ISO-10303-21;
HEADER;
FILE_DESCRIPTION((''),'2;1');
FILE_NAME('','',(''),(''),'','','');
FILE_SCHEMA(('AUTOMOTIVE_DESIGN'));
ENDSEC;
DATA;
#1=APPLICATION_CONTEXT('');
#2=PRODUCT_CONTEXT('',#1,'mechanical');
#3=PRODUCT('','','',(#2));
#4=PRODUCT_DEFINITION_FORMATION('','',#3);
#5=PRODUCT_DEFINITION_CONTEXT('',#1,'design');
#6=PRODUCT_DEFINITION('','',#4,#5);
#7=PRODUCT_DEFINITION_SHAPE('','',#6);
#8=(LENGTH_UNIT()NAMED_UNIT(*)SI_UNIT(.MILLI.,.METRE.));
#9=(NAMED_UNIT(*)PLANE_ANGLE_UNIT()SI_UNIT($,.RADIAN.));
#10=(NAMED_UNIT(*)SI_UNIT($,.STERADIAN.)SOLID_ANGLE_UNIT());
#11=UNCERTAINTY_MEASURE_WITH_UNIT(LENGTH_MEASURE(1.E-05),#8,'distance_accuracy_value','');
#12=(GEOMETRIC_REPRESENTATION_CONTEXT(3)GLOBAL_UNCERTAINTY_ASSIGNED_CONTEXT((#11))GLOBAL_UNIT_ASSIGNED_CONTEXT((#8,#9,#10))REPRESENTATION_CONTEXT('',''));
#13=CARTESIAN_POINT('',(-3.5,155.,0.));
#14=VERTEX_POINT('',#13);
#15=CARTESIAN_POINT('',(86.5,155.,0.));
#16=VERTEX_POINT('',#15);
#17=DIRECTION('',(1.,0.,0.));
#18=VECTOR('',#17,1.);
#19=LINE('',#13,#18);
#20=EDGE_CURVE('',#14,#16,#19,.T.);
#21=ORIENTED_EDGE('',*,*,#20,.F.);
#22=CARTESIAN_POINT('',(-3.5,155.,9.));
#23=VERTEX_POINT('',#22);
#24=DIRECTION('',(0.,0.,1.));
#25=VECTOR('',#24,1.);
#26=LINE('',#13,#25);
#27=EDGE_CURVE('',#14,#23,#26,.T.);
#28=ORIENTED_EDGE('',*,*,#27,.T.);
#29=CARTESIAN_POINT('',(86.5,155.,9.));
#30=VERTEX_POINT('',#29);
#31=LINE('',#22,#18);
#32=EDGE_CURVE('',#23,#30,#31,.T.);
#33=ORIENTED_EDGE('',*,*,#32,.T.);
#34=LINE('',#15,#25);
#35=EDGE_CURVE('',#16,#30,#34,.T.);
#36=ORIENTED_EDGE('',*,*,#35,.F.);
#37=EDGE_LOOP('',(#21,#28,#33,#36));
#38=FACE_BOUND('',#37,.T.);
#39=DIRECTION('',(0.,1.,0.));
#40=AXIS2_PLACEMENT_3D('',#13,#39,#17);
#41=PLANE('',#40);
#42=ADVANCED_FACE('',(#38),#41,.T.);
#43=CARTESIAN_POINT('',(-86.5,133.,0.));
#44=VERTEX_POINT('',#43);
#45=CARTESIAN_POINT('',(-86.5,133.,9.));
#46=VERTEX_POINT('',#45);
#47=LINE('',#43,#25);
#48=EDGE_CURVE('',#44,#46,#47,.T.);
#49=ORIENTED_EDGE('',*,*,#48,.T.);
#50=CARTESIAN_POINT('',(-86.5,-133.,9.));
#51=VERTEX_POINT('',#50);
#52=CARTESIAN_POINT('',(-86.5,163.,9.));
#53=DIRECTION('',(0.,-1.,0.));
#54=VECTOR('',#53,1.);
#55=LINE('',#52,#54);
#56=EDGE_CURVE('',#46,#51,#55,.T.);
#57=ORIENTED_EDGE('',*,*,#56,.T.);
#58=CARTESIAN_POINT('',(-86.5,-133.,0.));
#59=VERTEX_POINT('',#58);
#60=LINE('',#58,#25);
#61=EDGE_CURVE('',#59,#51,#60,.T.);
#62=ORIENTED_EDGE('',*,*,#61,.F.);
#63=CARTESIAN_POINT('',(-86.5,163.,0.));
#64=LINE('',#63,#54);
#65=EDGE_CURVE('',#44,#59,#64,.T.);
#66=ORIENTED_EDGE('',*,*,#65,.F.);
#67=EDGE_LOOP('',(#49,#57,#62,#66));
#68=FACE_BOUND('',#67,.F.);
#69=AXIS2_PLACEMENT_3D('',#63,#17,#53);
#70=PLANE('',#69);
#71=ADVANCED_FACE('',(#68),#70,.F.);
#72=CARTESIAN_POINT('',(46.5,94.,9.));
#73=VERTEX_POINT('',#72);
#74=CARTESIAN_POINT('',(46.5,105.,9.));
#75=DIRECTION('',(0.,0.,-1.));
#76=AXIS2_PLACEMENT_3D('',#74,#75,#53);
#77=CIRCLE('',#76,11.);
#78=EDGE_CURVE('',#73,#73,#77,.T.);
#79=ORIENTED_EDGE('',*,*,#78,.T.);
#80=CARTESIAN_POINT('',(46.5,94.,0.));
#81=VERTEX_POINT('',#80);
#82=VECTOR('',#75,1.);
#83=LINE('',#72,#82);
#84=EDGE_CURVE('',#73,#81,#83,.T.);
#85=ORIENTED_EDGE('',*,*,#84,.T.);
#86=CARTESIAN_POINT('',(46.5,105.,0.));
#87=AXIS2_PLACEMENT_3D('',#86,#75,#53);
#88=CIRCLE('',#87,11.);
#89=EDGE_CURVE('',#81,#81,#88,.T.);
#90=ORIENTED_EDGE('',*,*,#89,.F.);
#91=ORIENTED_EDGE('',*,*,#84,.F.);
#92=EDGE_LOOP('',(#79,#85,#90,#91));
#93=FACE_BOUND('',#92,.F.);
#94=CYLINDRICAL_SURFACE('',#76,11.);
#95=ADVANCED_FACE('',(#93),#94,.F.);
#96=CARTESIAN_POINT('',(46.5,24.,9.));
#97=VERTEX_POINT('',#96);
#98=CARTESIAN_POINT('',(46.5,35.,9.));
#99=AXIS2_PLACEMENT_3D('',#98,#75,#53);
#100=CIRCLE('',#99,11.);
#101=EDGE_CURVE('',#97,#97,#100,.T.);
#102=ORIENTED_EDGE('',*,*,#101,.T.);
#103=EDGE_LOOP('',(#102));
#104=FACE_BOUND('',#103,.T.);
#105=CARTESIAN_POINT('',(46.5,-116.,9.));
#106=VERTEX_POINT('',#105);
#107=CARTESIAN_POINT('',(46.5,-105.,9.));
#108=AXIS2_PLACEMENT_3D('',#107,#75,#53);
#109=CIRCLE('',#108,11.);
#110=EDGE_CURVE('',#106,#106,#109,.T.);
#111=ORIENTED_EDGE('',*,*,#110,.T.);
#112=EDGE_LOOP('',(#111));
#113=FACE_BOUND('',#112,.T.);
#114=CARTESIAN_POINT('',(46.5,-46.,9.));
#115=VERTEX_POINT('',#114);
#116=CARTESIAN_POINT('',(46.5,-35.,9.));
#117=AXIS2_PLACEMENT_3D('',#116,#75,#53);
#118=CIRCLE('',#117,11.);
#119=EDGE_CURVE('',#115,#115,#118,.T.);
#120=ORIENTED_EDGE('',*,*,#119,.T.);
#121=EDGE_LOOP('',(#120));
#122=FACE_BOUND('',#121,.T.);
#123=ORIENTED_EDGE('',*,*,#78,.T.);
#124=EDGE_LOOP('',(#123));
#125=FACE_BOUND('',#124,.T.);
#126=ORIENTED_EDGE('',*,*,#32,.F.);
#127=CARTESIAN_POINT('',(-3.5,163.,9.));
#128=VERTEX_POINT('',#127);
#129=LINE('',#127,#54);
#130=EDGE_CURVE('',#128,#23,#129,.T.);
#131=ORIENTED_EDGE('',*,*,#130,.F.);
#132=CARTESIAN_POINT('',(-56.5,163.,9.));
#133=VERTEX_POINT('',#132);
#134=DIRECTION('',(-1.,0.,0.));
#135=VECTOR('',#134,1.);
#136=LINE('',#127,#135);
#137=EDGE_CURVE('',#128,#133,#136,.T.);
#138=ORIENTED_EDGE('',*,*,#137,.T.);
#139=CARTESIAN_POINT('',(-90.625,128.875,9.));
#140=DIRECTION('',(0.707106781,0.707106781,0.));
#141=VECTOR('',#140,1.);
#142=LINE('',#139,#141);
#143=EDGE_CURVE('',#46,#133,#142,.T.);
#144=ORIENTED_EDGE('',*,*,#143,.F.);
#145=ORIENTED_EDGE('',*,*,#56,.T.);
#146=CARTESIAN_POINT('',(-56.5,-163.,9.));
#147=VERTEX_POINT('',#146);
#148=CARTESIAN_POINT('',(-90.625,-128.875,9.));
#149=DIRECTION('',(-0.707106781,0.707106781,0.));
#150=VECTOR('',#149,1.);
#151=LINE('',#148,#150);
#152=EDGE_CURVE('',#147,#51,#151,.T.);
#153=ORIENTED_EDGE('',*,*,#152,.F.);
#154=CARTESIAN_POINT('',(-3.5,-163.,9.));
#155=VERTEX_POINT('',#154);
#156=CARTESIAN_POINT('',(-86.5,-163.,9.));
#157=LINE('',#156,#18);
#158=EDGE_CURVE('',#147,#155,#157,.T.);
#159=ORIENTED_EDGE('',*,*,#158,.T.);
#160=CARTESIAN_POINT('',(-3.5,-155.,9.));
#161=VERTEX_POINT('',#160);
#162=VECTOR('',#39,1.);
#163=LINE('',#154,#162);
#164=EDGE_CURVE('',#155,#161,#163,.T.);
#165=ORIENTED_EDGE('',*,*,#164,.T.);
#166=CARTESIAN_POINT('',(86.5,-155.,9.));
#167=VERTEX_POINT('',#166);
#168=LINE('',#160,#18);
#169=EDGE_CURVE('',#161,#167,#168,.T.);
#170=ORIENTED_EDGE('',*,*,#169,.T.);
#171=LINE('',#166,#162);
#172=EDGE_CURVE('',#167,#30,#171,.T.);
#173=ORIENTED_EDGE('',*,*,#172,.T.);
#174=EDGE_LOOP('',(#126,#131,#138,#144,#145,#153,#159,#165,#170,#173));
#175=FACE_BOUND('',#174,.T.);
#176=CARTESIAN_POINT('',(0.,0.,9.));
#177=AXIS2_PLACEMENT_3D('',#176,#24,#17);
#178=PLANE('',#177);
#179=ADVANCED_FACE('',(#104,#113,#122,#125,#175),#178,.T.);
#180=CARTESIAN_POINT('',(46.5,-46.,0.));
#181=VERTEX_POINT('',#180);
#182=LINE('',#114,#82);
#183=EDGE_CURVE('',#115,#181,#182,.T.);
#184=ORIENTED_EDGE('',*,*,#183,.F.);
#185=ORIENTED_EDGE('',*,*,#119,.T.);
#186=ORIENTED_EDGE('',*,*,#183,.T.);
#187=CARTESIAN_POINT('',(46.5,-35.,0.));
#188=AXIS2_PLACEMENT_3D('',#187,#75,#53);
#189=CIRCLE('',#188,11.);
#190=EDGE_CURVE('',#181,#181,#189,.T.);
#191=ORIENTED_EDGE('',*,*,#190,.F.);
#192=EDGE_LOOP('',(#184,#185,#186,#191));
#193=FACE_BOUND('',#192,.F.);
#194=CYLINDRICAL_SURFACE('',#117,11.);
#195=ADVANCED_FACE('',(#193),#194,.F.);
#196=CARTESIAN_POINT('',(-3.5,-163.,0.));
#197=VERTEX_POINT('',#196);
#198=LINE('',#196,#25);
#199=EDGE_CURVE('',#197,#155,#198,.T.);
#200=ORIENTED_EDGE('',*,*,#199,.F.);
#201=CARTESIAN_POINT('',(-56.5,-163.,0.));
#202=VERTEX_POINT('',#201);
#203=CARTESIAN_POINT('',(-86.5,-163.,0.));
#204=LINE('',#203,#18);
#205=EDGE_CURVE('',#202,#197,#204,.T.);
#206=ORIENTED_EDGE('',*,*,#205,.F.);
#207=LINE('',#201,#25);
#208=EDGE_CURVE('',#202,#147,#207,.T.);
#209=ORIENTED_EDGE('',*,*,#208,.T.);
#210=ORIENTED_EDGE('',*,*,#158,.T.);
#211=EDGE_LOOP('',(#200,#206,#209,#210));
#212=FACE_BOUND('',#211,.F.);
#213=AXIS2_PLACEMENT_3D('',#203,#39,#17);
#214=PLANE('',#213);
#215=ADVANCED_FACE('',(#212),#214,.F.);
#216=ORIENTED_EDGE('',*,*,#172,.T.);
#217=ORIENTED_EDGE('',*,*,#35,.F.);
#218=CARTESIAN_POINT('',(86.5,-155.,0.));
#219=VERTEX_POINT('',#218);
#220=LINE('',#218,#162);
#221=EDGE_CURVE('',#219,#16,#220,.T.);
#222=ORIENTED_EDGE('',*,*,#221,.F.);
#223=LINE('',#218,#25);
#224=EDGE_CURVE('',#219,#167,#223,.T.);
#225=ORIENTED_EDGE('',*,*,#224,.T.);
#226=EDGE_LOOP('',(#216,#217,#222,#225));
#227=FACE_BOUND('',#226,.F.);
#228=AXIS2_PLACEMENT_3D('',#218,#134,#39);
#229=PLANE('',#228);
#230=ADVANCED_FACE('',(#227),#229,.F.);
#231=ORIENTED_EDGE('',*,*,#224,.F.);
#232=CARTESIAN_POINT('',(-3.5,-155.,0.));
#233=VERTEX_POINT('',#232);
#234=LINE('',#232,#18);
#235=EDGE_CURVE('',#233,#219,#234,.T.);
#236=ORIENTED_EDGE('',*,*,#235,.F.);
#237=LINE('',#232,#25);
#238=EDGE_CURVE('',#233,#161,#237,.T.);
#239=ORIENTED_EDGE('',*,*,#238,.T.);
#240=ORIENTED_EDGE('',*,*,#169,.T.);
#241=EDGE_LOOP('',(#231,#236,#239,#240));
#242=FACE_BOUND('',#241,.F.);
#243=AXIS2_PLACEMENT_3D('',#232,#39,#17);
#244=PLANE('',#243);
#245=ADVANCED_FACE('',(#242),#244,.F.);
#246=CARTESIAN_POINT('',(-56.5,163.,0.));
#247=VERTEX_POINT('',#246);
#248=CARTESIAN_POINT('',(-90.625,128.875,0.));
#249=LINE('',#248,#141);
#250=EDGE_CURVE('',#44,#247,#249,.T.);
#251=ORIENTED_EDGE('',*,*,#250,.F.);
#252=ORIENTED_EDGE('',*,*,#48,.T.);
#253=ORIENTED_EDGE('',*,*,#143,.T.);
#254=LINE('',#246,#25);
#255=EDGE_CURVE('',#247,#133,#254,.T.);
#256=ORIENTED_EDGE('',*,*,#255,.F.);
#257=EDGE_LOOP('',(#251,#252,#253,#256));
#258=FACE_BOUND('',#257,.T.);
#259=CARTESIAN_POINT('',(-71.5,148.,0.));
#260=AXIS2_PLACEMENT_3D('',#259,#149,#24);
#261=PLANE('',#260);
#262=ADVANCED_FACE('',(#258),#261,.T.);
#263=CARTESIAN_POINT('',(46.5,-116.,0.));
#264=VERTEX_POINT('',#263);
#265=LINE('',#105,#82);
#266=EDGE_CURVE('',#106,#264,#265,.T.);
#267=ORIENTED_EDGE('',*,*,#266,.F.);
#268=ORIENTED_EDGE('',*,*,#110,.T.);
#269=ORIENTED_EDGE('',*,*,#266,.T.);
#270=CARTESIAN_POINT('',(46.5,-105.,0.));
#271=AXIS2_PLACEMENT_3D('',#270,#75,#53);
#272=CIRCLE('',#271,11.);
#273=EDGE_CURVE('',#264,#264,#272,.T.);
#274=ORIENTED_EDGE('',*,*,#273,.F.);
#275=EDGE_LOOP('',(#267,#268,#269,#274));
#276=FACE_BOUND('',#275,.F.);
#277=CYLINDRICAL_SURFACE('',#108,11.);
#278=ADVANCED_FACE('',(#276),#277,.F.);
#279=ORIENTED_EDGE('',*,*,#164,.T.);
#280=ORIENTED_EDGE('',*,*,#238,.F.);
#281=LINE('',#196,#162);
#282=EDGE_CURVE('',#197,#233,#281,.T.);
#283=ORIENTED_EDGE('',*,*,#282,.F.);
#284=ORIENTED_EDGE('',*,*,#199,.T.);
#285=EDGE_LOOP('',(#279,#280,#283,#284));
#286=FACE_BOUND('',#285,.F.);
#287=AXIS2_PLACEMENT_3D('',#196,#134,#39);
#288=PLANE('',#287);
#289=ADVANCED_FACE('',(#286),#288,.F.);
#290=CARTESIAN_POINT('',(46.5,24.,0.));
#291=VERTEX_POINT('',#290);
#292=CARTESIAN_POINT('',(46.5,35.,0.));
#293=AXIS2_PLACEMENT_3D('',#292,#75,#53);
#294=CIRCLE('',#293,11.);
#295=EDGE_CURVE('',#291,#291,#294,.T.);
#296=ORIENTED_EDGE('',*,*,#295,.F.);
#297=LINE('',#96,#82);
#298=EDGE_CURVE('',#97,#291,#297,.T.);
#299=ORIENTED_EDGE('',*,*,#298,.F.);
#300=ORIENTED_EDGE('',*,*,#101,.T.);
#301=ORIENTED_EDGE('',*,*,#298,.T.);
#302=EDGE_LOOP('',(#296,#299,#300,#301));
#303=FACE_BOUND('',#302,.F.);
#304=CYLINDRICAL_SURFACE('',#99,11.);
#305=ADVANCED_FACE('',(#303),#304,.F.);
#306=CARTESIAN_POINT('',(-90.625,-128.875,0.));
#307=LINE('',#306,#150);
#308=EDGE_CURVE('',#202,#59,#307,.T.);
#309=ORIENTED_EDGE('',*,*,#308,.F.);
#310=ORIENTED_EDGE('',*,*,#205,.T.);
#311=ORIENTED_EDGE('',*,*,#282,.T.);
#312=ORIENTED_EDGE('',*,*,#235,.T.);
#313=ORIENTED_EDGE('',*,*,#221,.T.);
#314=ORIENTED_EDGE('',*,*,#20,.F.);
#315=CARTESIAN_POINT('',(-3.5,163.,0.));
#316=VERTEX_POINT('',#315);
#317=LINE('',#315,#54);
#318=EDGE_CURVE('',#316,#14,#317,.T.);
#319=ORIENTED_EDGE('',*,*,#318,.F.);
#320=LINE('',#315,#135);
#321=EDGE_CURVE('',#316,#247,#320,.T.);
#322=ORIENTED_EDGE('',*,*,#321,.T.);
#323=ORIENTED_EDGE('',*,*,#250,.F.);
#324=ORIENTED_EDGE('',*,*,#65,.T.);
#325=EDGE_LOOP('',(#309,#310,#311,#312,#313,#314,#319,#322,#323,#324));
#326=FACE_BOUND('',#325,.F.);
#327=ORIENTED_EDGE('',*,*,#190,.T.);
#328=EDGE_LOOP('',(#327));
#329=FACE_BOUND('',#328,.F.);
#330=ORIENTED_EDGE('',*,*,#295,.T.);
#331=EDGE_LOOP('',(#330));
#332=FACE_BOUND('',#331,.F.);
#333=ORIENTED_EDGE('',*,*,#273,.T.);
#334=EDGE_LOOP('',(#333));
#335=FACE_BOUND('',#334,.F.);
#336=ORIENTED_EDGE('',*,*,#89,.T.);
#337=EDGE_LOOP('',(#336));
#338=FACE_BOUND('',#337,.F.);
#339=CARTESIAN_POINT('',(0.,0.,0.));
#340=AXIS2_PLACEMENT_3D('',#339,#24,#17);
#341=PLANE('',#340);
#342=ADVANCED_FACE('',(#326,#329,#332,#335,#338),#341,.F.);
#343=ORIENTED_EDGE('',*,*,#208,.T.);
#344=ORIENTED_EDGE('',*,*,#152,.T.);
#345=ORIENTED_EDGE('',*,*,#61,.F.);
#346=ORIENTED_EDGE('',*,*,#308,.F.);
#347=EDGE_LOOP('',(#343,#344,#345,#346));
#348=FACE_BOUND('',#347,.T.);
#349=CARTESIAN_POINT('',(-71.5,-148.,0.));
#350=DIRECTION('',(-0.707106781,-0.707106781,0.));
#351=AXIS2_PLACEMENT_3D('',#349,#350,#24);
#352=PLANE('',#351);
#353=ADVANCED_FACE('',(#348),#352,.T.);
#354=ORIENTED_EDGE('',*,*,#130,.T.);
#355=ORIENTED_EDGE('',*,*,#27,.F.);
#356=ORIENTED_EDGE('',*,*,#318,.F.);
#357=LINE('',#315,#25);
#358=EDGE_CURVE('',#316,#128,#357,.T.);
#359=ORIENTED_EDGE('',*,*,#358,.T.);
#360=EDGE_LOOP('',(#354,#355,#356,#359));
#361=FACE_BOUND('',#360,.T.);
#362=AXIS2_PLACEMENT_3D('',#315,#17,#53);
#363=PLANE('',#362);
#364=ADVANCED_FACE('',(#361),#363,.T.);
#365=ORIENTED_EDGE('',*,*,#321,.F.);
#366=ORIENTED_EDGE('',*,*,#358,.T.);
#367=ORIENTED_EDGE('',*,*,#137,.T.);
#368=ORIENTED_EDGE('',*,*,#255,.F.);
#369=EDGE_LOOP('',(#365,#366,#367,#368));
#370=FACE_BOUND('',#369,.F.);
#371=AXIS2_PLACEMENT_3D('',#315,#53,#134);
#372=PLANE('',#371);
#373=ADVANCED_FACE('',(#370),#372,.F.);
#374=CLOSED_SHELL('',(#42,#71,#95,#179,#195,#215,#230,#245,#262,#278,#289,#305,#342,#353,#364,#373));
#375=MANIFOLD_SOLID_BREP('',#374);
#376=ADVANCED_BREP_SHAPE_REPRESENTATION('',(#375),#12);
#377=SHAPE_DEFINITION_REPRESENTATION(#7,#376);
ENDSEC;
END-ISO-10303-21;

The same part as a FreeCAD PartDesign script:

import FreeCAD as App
import Part
import Sketcher
from FreeCAD import Vector
Q = App.Units.Quantity


def edges_at(feature, points):
    """Names of the edges that pass closest to the given points."""
    edges = feature.Shape.Edges
    near = lambda p: min(range(len(edges)), key=lambda i: edges[i].distToShape(Part.Vertex(*p))[0])
    return sorted({f"Edge{near(p) + 1}" for p in points})

doc = App.newDocument("Part")
params = doc.addObject("Spreadsheet::Sheet", "Params")
for row, (alias, value) in enumerate([
    ("sketch1_height", "326 mm"),
    ("sketch1_width", "83 mm"),
    ("sketch1_width2", "90 mm"),
    ("sketch1_height2", "8 mm"),
    ("pad1_length", "9 mm"),
    ("chamfer_size", "30 mm"),
    ("sketch2_diameter", "22 mm"),
    ("hole_diameter", "22 mm"),
], start=1):
    params.set(f"A{row}", alias)
    params.set(f"B{row}", "=" + value)
    params.setAlias(f"B{row}", alias)

body = doc.addObject("PartDesign::Body", "Body")

# Sketch on XY plane
sketch1 = body.newObject("Sketcher::SketchObject", "Sketch")
sketch1.AttachmentSupport = (doc.getObject("XY_Plane"), [""])
sketch1.MapMode = "FlatFace"
sketch1.addGeometry(Part.LineSegment(Vector(-4, 155, 0), Vector(-4, 163, 0)), False)
sketch1.addGeometry(Part.LineSegment(Vector(-4, 163, 0), Vector(-86, 163, 0)), False)
sketch1.addGeometry(Part.LineSegment(Vector(-86, 163, 0), Vector(-86, -163, 0)), False)
sketch1.addGeometry(Part.LineSegment(Vector(-86, -163, 0), Vector(-4, -163, 0)), False)
sketch1.addGeometry(Part.LineSegment(Vector(-4, -163, 0), Vector(-4, -155, 0)), False)
sketch1.addGeometry(Part.LineSegment(Vector(-4, -155, 0), Vector(86, -155, 0)), False)
sketch1.addGeometry(Part.LineSegment(Vector(86, -155, 0), Vector(86, 155, 0)), False)
sketch1.addGeometry(Part.LineSegment(Vector(86, 155, 0), Vector(-4, 155, 0)), False)
sketch1.addConstraint(Sketcher.Constraint("Coincident", 0, 2, 1, 1))
sketch1.addConstraint(Sketcher.Constraint("Coincident", 1, 2, 2, 1))
sketch1.addConstraint(Sketcher.Constraint("Coincident", 2, 2, 3, 1))
sketch1.addConstraint(Sketcher.Constraint("Coincident", 3, 2, 4, 1))
sketch1.addConstraint(Sketcher.Constraint("Coincident", 4, 2, 5, 1))
sketch1.addConstraint(Sketcher.Constraint("Coincident", 5, 2, 6, 1))
sketch1.addConstraint(Sketcher.Constraint("Coincident", 6, 2, 7, 1))
sketch1.addConstraint(Sketcher.Constraint("Coincident", 7, 2, 0, 1))
sketch1.addConstraint(Sketcher.Constraint("Vertical", 0))
sketch1.addConstraint(Sketcher.Constraint("Horizontal", 1))
sketch1.addConstraint(Sketcher.Constraint("Vertical", 2))
sketch1.addConstraint(Sketcher.Constraint("Horizontal", 3))
sketch1.addConstraint(Sketcher.Constraint("Vertical", 4))
sketch1.addConstraint(Sketcher.Constraint("Horizontal", 5))
sketch1.addConstraint(Sketcher.Constraint("Vertical", 6))
sketch1.addConstraint(Sketcher.Constraint("Horizontal", 7))
sketch1.addConstraint(Sketcher.Constraint("Symmetric", 0, 2, 3, 2, -1))
sketch1.addConstraint(Sketcher.Constraint("Equal", 0, 4))
sketch1.addConstraint(Sketcher.Constraint("DistanceY", 2, 2, 2, 1, Q("326 mm")))
sketch1.addConstraint(Sketcher.Constraint("DistanceX", 1, 2, 1, 1, Q("83 mm")))
sketch1.addConstraint(Sketcher.Constraint("DistanceX", 5, 1, 5, 2, Q("90 mm")))
sketch1.addConstraint(Sketcher.Constraint("DistanceY", 0, 1, 0, 2, Q("8 mm")))
sketch1.addConstraint(Sketcher.Constraint("DistanceX", 0, 2, -1, 1, Q("3.5 mm")))
sketch1.setExpression("Constraints[18]", "Params.sketch1_height")
sketch1.setExpression("Constraints[19]", "Params.sketch1_width")
sketch1.setExpression("Constraints[20]", "Params.sketch1_width2")
sketch1.setExpression("Constraints[21]", "Params.sketch1_height2")
pad1 = body.newObject("PartDesign::Pad", "Pad")
pad1.Profile = sketch1
pad1.setExpression("Length", "Params.pad1_length")
doc.recompute()

chamfer = body.newObject("PartDesign::Chamfer", "Chamfer")
chamfer.Base = (pad1, edges_at(pad1, [(-86.5, -163, 4.5), (-86.5, 163, 4.5)]))
chamfer.setExpression("Size", "Params.chamfer_size")

# Sketch on XY plane
sketch2 = body.newObject("Sketcher::SketchObject", "Sketch001")
sketch2.AttachmentSupport = (doc.getObject("XY_Plane"), [""])
sketch2.MapMode = "FlatFace"
sketch2.AttachmentOffset = App.Placement(Vector(0, 0, 9), App.Rotation())
sketch2.addGeometry(Part.Circle(Vector(46, 105, 0), Vector(0, 0, 1), 11), False)
sketch2.addGeometry(Part.Circle(Vector(46, 35, 0), Vector(0, 0, 1), 11), False)
sketch2.addGeometry(Part.Circle(Vector(46, -35, 0), Vector(0, 0, 1), 11), False)
sketch2.addGeometry(Part.Circle(Vector(46, -105, 0), Vector(0, 0, 1), 11), False)
sketch2.addConstraint(Sketcher.Constraint("Equal", 0, 1))
sketch2.addConstraint(Sketcher.Constraint("Equal", 1, 2))
sketch2.addConstraint(Sketcher.Constraint("Equal", 2, 3))
sketch2.addConstraint(Sketcher.Constraint("Symmetric", 1, 3, 2, 3, -1))
sketch2.addConstraint(Sketcher.Constraint("Symmetric", 0, 3, 3, 3, -1))
sketch2.addConstraint(Sketcher.Constraint("Vertical", 0, 3, 1, 3))
sketch2.addConstraint(Sketcher.Constraint("Diameter", 0, Q("22 mm")))
sketch2.addConstraint(Sketcher.Constraint("DistanceY", -1, 1, 0, 3, Q("105 mm")))
sketch2.addConstraint(Sketcher.Constraint("DistanceY", -1, 1, 1, 3, Q("35 mm")))
sketch2.addConstraint(Sketcher.Constraint("DistanceX", -1, 1, 0, 3, Q("46.5 mm")))
sketch2.setExpression("Constraints[6]", "Params.sketch2_diameter")
doc.recompute()
hole = body.newObject("PartDesign::Hole", "Hole")
hole.Profile = sketch2
hole.ThreadType = "None"
hole.setExpression("Diameter", "Params.hole_diameter")
hole.DepthType = "ThroughAll"

doc.recompute()
